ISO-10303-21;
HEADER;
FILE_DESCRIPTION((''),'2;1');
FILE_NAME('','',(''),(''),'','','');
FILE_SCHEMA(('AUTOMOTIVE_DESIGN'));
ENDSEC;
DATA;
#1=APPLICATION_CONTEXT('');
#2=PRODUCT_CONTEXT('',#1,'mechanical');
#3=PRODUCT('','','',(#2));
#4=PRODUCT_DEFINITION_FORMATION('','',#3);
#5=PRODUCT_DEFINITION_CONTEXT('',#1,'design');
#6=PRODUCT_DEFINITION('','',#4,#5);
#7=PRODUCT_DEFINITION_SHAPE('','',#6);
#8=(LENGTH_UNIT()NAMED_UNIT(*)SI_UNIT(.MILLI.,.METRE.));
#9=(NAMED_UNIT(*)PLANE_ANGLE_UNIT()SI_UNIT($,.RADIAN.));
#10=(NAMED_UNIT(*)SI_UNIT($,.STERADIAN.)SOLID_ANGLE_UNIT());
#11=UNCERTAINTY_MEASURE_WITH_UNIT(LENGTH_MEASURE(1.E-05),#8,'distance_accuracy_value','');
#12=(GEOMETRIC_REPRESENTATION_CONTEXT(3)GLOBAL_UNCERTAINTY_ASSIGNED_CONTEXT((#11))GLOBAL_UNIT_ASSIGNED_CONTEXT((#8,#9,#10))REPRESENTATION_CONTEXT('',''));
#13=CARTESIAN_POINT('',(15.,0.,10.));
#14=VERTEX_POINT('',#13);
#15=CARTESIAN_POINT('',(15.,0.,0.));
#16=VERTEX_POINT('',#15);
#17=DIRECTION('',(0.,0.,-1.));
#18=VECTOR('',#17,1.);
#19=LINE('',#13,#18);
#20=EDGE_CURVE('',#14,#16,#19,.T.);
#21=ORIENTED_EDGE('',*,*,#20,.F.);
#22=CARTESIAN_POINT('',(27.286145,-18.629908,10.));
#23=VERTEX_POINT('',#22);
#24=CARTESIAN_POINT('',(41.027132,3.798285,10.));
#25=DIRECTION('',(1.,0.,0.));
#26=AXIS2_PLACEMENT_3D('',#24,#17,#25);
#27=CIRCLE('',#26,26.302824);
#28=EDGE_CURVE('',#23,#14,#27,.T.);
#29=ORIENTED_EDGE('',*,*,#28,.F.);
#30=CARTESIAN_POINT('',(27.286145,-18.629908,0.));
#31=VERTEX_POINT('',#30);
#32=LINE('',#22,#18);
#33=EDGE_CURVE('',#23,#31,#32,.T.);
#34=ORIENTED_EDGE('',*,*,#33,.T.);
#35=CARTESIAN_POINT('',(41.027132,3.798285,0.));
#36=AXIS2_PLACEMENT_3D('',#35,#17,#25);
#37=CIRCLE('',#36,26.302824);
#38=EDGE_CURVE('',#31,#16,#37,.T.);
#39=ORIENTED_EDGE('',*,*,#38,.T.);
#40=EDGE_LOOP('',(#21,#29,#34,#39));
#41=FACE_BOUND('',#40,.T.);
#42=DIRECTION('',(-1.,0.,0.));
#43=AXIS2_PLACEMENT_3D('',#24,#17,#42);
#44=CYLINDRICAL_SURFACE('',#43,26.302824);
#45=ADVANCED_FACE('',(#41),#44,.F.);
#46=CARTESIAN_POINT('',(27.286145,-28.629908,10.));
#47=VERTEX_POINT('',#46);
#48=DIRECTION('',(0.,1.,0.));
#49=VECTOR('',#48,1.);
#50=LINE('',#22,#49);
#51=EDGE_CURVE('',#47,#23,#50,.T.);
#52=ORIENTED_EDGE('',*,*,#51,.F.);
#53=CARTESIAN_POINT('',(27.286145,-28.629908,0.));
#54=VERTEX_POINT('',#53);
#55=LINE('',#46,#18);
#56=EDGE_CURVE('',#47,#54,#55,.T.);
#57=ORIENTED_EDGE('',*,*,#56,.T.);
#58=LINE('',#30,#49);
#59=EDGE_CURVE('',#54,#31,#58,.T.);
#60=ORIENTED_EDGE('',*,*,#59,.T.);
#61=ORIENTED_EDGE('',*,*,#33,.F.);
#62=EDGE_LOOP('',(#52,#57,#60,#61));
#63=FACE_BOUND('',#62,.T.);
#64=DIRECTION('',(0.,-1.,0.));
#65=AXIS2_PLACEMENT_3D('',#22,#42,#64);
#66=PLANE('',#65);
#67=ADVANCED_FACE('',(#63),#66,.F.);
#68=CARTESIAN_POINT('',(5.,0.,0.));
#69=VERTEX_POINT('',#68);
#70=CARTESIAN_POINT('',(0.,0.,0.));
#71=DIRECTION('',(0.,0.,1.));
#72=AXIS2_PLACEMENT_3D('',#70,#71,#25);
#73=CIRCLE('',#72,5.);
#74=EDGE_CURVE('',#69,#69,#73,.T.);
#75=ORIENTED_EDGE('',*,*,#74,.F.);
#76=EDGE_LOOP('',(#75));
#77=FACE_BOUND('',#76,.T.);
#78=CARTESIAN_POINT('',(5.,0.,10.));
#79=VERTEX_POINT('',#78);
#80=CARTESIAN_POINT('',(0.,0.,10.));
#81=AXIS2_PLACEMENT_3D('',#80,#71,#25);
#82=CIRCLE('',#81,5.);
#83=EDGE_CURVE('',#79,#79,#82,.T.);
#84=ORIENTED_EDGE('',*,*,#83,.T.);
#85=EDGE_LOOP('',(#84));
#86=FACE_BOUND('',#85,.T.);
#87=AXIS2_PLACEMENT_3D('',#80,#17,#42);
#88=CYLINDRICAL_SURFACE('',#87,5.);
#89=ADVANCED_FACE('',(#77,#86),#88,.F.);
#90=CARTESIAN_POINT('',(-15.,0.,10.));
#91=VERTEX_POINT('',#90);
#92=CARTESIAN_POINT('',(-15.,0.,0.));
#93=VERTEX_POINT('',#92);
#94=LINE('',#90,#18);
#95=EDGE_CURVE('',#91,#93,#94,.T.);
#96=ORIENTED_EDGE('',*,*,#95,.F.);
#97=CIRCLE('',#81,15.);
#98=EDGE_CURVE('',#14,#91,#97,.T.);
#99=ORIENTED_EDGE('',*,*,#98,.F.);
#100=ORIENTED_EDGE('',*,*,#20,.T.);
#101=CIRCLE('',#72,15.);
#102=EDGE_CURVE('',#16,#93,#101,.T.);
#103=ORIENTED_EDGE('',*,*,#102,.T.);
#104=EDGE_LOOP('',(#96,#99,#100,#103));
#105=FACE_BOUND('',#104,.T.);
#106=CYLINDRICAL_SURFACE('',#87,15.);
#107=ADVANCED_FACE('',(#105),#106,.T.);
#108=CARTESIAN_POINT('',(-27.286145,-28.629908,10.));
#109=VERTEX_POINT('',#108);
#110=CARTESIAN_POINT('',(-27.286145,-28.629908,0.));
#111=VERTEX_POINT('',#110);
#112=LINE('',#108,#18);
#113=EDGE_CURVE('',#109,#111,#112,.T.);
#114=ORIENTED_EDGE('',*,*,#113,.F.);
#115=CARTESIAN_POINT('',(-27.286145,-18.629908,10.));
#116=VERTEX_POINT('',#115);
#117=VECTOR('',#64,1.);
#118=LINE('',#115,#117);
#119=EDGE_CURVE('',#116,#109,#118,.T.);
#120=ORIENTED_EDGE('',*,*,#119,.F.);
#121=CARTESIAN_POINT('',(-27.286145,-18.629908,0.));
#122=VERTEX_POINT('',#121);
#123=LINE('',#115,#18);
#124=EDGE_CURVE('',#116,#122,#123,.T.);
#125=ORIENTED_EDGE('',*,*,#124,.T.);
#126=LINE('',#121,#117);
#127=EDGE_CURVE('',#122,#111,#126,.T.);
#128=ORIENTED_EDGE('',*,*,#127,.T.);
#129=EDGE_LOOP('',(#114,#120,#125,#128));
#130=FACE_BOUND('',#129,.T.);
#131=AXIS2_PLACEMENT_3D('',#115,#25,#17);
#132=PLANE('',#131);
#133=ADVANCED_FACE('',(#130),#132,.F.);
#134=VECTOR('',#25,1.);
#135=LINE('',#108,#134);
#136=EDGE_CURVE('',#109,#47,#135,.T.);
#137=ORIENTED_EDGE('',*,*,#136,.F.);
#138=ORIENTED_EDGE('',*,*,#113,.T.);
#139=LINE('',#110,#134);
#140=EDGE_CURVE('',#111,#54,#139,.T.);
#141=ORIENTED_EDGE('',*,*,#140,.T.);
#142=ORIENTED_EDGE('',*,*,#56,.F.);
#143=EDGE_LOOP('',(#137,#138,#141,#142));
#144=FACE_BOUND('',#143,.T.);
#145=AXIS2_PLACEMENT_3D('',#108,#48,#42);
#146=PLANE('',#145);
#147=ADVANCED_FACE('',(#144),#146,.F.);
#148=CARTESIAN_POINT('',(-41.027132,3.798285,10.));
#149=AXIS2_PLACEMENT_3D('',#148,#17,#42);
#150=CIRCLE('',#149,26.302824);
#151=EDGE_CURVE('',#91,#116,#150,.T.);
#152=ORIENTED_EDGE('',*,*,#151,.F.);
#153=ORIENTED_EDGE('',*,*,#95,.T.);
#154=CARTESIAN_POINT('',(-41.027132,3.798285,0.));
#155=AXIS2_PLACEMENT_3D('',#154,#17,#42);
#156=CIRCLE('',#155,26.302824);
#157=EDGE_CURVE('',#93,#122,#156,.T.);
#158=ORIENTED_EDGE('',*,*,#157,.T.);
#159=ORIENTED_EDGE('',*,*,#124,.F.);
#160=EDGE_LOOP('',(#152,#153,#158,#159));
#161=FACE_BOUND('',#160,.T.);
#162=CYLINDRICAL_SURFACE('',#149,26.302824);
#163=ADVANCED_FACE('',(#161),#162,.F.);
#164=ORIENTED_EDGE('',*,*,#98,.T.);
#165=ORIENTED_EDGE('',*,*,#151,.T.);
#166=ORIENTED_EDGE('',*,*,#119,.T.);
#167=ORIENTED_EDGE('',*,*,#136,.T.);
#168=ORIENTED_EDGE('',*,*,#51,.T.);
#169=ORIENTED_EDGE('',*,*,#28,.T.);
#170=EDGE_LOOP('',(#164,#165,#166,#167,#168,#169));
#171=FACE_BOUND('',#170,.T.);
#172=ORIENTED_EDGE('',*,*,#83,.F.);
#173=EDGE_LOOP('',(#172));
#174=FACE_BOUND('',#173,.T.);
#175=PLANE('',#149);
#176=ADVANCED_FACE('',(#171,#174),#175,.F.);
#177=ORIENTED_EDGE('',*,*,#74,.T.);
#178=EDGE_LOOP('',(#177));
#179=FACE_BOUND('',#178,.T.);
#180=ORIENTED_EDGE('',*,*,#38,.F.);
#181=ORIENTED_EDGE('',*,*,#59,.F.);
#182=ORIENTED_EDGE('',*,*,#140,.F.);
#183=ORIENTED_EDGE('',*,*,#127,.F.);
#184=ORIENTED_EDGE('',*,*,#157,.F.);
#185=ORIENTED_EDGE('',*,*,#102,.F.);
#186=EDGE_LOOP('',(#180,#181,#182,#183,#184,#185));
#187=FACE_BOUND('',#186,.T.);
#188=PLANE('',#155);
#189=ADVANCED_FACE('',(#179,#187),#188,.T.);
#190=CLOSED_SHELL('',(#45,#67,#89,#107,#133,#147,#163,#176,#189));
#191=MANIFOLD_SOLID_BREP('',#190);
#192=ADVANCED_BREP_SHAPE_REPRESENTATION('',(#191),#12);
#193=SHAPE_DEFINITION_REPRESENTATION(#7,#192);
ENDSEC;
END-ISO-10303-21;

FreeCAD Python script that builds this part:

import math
import FreeCAD as App
import Part
import Sketcher

doc = App.newDocument("Part")
body = doc.addObject("PartDesign::Body", "Body")

# Sketch on XY plane
sketch1 = body.newObject("Sketcher::SketchObject", "Sketch")
sketch1.AttachmentSupport = (doc.getObject("XY_Plane"), [""])
sketch1.MapMode = "FlatFace"
sketch1.addGeometry(Part.LineSegment(App.Vector(-27, -19, 0), App.Vector(-27, -29, 0)), False)
sketch1.addGeometry(Part.LineSegment(App.Vector(-27, -29, 0), App.Vector(27, -29, 0)), False)
sketch1.addGeometry(Part.LineSegment(App.Vector(27, -29, 0), App.Vector(27, -19, 0)), False)
sketch1.addGeometry(Part.ArcOfCircle(Part.Circle(App.Vector(41, 4, 0), App.Vector(0, 0, 1), 26), math.radians(-172), math.radians(-121)), False)
sketch1.addGeometry(Part.ArcOfCircle(Part.Circle(App.Vector(0, 0, 0), App.Vector(0, 0, 1), 15), math.radians(0), math.radians(180)), False)
sketch1.addGeometry(Part.ArcOfCircle(Part.Circle(App.Vector(-41, 4, 0), App.Vector(0, 0, 1), 26), math.radians(-59), math.radians(-8)), False)
sketch1.addGeometry(Part.Circle(App.Vector(0, 0, 0), App.Vector(0, 0, 1), 5), False)
sketch1.addConstraint(Sketcher.Constraint("Coincident", 0, 2, 1, 1))
sketch1.addConstraint(Sketcher.Constraint("Coincident", 1, 2, 2, 1))
sketch1.addConstraint(Sketcher.Constraint("Coincident", 2, 2, 3, 2))
sketch1.addConstraint(Sketcher.Constraint("Coincident", 3, 1, 4, 1))
sketch1.addConstraint(Sketcher.Constraint("Coincident", 4, 2, 5, 2))
sketch1.addConstraint(Sketcher.Constraint("Coincident", 5, 1, 0, 1))
sketch1.addConstraint(Sketcher.Constraint("Vertical", 0))
sketch1.addConstraint(Sketcher.Constraint("Horizontal", 1))
sketch1.addConstraint(Sketcher.Constraint("Vertical", 2))
sketch1.addConstraint(Sketcher.Constraint("Coincident", 4, 3, -1, 1))
sketch1.addConstraint(Sketcher.Constraint("Coincident", 6, 3, -1, 1))
sketch1.addConstraint(Sketcher.Constraint("Equal", 3, 5))
sketch1.addConstraint(Sketcher.Constraint("Symmetric", 3, 3, 5, 3, -2))
sketch1.addConstraint(Sketcher.Constraint("PointOnObject", 3, 1, -1))
sketch1.addConstraint(Sketcher.Constraint("Horizontal", 2, 2, 5, 1))
sketch1.addConstraint(Sketcher.Constraint("Diameter", 6, 10.0))
sketch1.addConstraint(Sketcher.Constraint("Radius", 4, 15.0))
sketch1.addConstraint(Sketcher.Constraint("DistanceY", 0, 2, 0, 1, 10.0))
sketch1.addConstraint(Sketcher.Constraint("Radius", 3, 26.302824))
sketch1.addConstraint(Sketcher.Constraint("DistanceX", 1, 1, 1, 2, 54.572289))
sketch1.addConstraint(Sketcher.Constraint("DistanceX", -1, 1, 3, 3, 41.027132))
pad1 = body.newObject("PartDesign::Pad", "Pad")
pad1.Profile = sketch1
pad1.Length = 10

doc.recompute()
